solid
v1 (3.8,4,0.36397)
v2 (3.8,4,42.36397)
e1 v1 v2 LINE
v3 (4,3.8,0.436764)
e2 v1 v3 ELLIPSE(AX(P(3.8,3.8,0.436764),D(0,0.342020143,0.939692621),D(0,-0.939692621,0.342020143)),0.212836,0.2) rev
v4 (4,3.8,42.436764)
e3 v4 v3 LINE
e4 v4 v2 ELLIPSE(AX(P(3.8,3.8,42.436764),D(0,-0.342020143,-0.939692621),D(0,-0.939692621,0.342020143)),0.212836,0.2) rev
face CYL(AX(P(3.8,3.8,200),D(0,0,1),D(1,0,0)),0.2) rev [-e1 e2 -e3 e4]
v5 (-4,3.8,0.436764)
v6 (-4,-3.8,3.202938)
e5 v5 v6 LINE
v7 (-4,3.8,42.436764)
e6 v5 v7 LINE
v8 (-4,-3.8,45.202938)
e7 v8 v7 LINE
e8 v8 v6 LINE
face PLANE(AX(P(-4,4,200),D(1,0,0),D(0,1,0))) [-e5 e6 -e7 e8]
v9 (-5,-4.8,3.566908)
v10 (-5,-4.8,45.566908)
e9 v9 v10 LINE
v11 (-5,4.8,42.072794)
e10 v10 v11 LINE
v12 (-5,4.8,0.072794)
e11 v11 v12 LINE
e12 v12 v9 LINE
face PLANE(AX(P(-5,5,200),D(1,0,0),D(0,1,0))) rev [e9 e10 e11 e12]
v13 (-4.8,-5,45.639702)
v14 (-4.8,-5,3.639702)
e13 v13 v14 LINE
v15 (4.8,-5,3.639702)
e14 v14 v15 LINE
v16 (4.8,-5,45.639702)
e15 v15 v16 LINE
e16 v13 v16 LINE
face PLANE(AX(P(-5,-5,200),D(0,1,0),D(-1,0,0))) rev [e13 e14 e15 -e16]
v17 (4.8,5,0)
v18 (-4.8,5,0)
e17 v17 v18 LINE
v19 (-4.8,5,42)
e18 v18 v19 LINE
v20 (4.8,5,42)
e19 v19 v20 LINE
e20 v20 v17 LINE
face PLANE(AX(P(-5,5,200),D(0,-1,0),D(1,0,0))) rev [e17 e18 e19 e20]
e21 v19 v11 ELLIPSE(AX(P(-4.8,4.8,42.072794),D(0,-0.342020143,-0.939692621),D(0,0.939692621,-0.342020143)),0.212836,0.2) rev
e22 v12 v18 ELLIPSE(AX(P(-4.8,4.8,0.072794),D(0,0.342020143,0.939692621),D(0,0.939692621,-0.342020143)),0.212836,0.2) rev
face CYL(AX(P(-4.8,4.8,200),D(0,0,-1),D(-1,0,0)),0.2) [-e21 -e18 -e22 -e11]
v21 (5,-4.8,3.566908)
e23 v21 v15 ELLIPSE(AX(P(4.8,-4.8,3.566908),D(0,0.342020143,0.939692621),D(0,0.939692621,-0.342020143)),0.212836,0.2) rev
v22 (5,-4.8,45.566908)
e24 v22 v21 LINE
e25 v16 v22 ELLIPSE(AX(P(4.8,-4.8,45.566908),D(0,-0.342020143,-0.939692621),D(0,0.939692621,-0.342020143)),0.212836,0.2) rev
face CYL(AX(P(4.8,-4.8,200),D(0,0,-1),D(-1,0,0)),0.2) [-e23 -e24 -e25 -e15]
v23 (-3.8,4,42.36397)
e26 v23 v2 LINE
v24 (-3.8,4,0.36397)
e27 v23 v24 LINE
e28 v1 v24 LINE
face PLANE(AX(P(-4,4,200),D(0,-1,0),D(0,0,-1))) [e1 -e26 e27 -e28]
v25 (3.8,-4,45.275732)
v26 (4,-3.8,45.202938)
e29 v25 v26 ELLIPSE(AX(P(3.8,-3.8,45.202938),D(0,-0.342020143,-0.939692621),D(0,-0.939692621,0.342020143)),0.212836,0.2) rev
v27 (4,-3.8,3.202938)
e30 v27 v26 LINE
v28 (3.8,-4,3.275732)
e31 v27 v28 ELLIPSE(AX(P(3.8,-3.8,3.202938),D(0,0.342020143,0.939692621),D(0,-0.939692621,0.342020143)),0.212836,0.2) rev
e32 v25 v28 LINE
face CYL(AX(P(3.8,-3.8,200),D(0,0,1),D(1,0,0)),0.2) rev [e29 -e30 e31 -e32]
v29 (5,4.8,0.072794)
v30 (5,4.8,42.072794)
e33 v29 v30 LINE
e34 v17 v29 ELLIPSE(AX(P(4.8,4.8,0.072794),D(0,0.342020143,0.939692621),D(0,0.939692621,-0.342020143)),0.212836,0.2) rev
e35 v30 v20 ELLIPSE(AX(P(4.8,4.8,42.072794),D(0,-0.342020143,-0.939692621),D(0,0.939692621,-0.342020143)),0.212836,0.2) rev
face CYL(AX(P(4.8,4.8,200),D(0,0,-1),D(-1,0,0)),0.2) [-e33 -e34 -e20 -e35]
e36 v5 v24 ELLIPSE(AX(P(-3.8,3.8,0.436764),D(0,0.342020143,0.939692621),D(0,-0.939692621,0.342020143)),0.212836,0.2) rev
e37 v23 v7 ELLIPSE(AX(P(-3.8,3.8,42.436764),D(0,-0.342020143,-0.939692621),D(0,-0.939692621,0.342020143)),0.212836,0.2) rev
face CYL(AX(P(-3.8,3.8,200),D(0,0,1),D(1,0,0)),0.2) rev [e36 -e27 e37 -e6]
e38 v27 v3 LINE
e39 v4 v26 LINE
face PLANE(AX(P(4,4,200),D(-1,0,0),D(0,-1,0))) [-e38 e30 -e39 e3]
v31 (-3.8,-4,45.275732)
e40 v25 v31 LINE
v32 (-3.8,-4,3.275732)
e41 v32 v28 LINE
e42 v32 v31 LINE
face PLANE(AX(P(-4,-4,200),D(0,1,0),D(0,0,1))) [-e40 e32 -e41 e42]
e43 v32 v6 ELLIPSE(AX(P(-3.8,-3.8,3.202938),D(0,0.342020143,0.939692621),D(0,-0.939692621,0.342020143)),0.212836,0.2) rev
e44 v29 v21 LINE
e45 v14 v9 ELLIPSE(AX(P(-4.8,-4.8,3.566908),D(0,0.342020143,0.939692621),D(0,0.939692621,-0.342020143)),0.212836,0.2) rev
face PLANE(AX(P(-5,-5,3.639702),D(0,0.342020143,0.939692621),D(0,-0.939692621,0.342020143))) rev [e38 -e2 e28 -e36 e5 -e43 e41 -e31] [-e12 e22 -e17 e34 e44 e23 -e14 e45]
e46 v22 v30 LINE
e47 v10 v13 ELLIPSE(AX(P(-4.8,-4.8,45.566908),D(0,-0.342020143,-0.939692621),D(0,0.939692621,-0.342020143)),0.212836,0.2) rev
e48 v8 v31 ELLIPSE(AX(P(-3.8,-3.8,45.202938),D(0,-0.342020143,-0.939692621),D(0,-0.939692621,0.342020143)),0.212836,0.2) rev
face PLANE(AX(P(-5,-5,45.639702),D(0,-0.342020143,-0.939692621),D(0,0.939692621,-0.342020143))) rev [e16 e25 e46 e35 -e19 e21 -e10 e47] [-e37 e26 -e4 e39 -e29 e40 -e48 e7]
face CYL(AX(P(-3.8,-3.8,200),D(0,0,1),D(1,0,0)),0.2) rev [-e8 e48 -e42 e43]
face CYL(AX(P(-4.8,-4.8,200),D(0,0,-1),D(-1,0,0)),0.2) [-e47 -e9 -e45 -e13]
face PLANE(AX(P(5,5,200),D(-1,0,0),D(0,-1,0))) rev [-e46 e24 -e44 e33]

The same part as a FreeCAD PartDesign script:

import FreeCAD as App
import Part
import Sketcher
from FreeCAD import Vector
Q = App.Units.Quantity


def edges_at(feature, points):
    """Names of the edges that pass closest to the given points."""
    edges = feature.Shape.Edges
    near = lambda p: min(range(len(edges)), key=lambda i: edges[i].distToShape(Part.Vertex(*p))[0])
    return sorted({f"Edge{near(p) + 1}" for p in points})


def add_polygon(sketch, points):
    """Adds a closed chain of lines whose ends are joined by coincident constraints."""
    first, n = sketch.GeometryCount, len(points)
    for a, b in zip(points, points[1:] + points[:1]):
        sketch.addGeometry(Part.LineSegment(App.Vector(*a, 0), App.Vector(*b, 0)), False)
    for i in range(n):
        sketch.addConstraint(Sketcher.Constraint("Coincident", first + i, 2, first + (i + 1) % n, 1))

doc = App.newDocument("Part")
params = doc.addObject("Spreadsheet::Sheet", "Params")
for row, (alias, value) in enumerate([
    ("sketch1_width", "10 mm"),
    ("sketch1_width2", "8 mm"),
    ("pad1_length", "200 mm"),
    ("fillet_radius", "0.2 mm"),
    ("sketch2_width", "10 mm"),
    ("sketch3_width", "10 mm"),
    ("sketch3_height", "158 mm"),
], start=1):
    params.set(f"A{row}", alias)
    params.set(f"B{row}", "=" + value)
    params.setAlias(f"B{row}", alias)

body = doc.addObject("PartDesign::Body", "Body")

sketch1 = doc.addObject("Sketcher::SketchObject", "Sketch")
body.addObject(sketch1)
sketch1.AttachmentSupport = (doc.XY_Plane, [""])
sketch1.MapMode = "FlatFace"
add_polygon(sketch1, [(-5, 5), (-5, -5), (5, -5), (5, 5)])
add_polygon(sketch1, [(4, -4), (-4, -4), (-4, 4), (4, 4)])
sketch1.addConstraint([
    Sketcher.Constraint("Vertical", 0),
    Sketcher.Constraint("Horizontal", 1),
    Sketcher.Constraint("Vertical", 2),
    Sketcher.Constraint("Horizontal", 3),
    Sketcher.Constraint("Horizontal", 4),
    Sketcher.Constraint("Vertical", 5),
    Sketcher.Constraint("Horizontal", 6),
    Sketcher.Constraint("Vertical", 7),
    Sketcher.Constraint("Symmetric", 0, 2, 2, 2, -1, 1),
    Sketcher.Constraint("Symmetric", 4, 2, 6, 2, -1, 1),
    Sketcher.Constraint("Equal", 3, 0),
    Sketcher.Constraint("Equal", 6, 5),
    Sketcher.Constraint("DistanceX", 1, 1, 1, 2, Q("10 mm")),
    Sketcher.Constraint("DistanceX", 4, 2, 4, 1, Q("8 mm")),
])
sketch1.setExpression("Constraints[20]", "Params.sketch1_width")
sketch1.setExpression("Constraints[21]", "Params.sketch1_width2")
pad1 = doc.addObject("PartDesign::Pad", "Pad")
body.addObject(pad1)
pad1.Profile = sketch1
pad1.setExpression("Length", "Params.pad1_length")
doc.recompute()

fillet = doc.addObject("PartDesign::Fillet", "Fillet")
body.addObject(fillet)
fillet.Base = (pad1, edges_at(pad1, [
    (-4, 4, 100),
    (-4, -4, 100),
    (4, -4, 100),
    (4, 4, 100),
    (-5, 5, 100),
    (5, 5, 100),
    (5, -5, 100),
    (-5, -5, 100),
]))
fillet.setExpression("Radius", "Params.fillet_radius")

sketch2 = doc.addObject("Sketcher::SketchObject", "Sketch001")
body.addObject(sketch2)
sketch2.AttachmentSupport = (doc.YZ_Plane, [""])
sketch2.MapMode = "FlatFace"
sketch2.AttachmentOffset = App.Placement(Vector(0, 0, 5), App.Rotation())
add_polygon(sketch2, [(-5, 0), (5, 0), (-5, 3.6)])
sketch2.addConstraint([
    Sketcher.Constraint("Horizontal", 0),
    Sketcher.Constraint("Vertical", 2),
    Sketcher.Constraint("Symmetric", 0, 2, 2, 2, -1, 1),
    Sketcher.Constraint("DistanceX", 0, 1, 0, 2, Q("10 mm")),
    Sketcher.Constraint("Angle", 1, Q("160 deg")),
])
sketch2.setExpression("Constraints[6]", "Params.sketch2_width")
pocket1 = doc.addObject("PartDesign::Pocket", "Pocket")
body.addObject(pocket1)
pocket1.Profile = sketch2
pocket1.Type = "ThroughAll"

sketch3 = doc.addObject("Sketcher::SketchObject", "Sketch002")
body.addObject(sketch3)
sketch3.AttachmentSupport = (doc.YZ_Plane, [""])
sketch3.MapMode = "FlatFace"
sketch3.AttachmentOffset = App.Placement(Vector(0, 0, 5), App.Rotation())
add_polygon(sketch3, [(-5, 46), (5, 42), (5, 200), (-5, 200)])
sketch3.addConstraint([
    Sketcher.Constraint("Vertical", 1),
    Sketcher.Constraint("Horizontal", 2),
    Sketcher.Constraint("Vertical", 3),
    Sketcher.Constraint("DistanceX", 2, 2, 2, 1, Q("10 mm")),
    Sketcher.Constraint("DistanceY", 1, 1, 1, 2, Q("158 mm")),
    Sketcher.Constraint("Angle", 0, Q("-20 deg")),
    Sketcher.Constraint("DistanceX", -1, 1, 0, 2, Q("5 mm")),
    Sketcher.Constraint("DistanceY", -1, 1, 0, 2, Q("42 mm")),
])
sketch3.setExpression("Constraints[7]", "Params.sketch3_width")
sketch3.setExpression("Constraints[8]", "Params.sketch3_height")
pocket2 = doc.addObject("PartDesign::Pocket", "Pocket001")
body.addObject(pocket2)
pocket2.Profile = sketch3
pocket2.Type = "ThroughAll"

doc.recompute()
